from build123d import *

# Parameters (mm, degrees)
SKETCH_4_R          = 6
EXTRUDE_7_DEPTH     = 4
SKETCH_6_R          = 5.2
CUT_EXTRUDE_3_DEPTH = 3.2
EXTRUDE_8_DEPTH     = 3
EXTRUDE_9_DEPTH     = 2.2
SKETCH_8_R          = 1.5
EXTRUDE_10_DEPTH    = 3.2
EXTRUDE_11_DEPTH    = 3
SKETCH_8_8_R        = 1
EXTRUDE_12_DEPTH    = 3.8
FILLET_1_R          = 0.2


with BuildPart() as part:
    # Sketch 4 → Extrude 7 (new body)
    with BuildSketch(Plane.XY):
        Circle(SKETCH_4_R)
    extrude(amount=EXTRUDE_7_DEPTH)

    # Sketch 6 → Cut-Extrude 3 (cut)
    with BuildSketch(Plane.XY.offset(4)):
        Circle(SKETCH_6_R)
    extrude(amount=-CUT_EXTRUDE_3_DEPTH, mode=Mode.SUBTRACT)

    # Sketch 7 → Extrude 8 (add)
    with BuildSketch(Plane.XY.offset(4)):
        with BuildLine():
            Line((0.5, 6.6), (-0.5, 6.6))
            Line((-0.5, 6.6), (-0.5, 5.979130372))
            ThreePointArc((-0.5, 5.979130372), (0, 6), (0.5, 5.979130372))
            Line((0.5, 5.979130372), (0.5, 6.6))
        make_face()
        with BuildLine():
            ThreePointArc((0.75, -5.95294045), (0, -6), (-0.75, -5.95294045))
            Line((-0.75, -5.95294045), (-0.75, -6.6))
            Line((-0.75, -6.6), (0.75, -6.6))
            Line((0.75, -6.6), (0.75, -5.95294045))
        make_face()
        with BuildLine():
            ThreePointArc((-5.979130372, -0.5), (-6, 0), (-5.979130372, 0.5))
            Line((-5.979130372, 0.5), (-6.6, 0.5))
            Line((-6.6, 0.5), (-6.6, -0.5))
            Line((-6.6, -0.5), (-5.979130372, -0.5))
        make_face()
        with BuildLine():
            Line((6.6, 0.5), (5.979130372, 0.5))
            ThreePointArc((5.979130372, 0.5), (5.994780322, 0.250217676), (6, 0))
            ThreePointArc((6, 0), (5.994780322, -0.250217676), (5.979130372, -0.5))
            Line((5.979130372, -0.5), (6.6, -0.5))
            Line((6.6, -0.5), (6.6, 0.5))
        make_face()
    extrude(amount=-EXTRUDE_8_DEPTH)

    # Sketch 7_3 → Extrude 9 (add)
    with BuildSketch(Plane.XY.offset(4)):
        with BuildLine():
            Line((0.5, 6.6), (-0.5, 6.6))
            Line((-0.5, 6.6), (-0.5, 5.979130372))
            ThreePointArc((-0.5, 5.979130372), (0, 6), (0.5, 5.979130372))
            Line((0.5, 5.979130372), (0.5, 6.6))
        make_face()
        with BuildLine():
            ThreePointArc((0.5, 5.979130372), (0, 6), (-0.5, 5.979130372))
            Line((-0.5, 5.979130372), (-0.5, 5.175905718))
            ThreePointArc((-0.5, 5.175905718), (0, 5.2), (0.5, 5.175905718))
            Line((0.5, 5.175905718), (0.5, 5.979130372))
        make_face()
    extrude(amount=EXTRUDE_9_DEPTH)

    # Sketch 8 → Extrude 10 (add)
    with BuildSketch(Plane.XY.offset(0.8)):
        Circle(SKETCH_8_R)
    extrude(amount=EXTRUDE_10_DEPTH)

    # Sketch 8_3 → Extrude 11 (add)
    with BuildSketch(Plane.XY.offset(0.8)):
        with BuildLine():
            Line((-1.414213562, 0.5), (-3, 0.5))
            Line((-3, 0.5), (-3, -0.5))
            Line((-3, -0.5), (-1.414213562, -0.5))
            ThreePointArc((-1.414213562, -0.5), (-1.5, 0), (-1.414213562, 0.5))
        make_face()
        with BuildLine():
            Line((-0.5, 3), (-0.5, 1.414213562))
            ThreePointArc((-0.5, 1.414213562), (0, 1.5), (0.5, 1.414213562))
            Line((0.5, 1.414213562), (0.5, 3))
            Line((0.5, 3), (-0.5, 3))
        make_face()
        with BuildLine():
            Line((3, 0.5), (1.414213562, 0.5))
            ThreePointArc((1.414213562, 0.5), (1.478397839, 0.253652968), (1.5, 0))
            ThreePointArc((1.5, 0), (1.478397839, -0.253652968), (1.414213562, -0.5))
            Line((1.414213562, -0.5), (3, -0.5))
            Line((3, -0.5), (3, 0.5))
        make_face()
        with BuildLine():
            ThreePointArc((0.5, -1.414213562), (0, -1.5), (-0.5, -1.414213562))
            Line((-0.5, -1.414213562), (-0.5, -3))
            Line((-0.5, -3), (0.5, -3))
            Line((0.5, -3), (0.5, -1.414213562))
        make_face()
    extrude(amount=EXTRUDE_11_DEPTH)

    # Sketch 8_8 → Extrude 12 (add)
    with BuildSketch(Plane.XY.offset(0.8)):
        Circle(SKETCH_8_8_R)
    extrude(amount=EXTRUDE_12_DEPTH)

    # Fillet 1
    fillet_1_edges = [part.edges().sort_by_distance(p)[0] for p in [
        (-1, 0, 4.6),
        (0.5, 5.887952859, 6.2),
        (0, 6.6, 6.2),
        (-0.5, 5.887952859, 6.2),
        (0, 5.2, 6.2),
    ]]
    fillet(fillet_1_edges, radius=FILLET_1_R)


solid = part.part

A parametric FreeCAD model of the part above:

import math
import FreeCAD as App
import Part
import Sketcher
Q = App.Units.Quantity


def edges_at(feature, points):
    """Names of the edges that pass closest to the given points."""
    edges = feature.Shape.Edges
    near = lambda p: min(range(len(edges)), key=lambda i: edges[i].distToShape(Part.Vertex(*p))[0])
    return sorted({f"Edge{near(p) + 1}" for p in points})

doc = App.newDocument("Part")
body = doc.addObject("PartDesign::Body", "Body")

# Sketch on XY plane
sketch1 = body.newObject("Sketcher::SketchObject", "Sketch")
sketch1.AttachmentSupport = (doc.getObject("XY_Plane"), [""])
sketch1.MapMode = "FlatFace"
sketch1.addGeometry(Part.Circle(App.Vector(0, 0, 0), App.Vector(0, 0, 1), 6), False)
sketch1.addConstraint([
    Sketcher.Constraint("Coincident", 0, 3, -1, 1),
    Sketcher.Constraint("Diameter", 0, Q("12 mm")),
])
pad1 = body.newObject("PartDesign::Pad", "Pad")
pad1.Profile = sketch1
pad1.Length = 4

# Sketch on XY plane
sketch2 = body.newObject("Sketcher::SketchObject", "Sketch001")
sketch2.AttachmentSupport = (doc.getObject("XY_Plane"), [""])
sketch2.MapMode = "FlatFace"
sketch2.AttachmentOffset = App.Placement(App.Vector(0, 0, 4), App.Rotation())
sketch2.addGeometry(Part.Circle(App.Vector(0, 0, 0), App.Vector(0, 0, 1), 5.2), False)
sketch2.addConstraint([
    Sketcher.Constraint("Coincident", 0, 3, -1, 1),
    Sketcher.Constraint("Diameter", 0, Q("10.4 mm")),
])
pocket1 = body.newObject("PartDesign::Pocket", "Pocket")
pocket1.Profile = sketch2
pocket1.Length = 3.2

# Sketch on XY plane
sketch3 = body.newObject("Sketcher::SketchObject", "Sketch002")
sketch3.AttachmentSupport = (doc.getObject("XY_Plane"), [""])
sketch3.MapMode = "FlatFace"
sketch3.AttachmentOffset = App.Placement(App.Vector(0, 0, 4), App.Rotation())
sketch3.addGeometry([
    Part.LineSegment(App.Vector(0.5, 6.6, 0), App.Vector(-0.5, 6.6, 0)),  # 0
    Part.LineSegment(App.Vector(-0.5, 6.6, 0), App.Vector(-0.5, 5.97913, 0)),  # 1
    Part.ArcOfCircle(Part.Circle(App.Vector(0, 0, 0), App.Vector(0, 0, 1), 6), math.radians(85.219808), math.radians(94.780192)),  # 2
    Part.LineSegment(App.Vector(0.5, 5.97913, 0), App.Vector(0.5, 6.6, 0)),  # 3
    Part.ArcOfCircle(Part.Circle(App.Vector(0, 0, 0), App.Vector(0, 0, 1), 6), math.radians(-97.180756), math.radians(-82.819244)),  # 4
    Part.LineSegment(App.Vector(-0.75, -5.95294, 0), App.Vector(-0.75, -6.6, 0)),  # 5
    Part.LineSegment(App.Vector(-0.75, -6.6, 0), App.Vector(0.75, -6.6, 0)),  # 6
    Part.LineSegment(App.Vector(0.75, -6.6, 0), App.Vector(0.75, -5.95294, 0)),  # 7
    Part.ArcOfCircle(Part.Circle(App.Vector(0, 0, 0), App.Vector(0, 0, 1), 6), math.radians(175.219808), math.radians(184.780192)),  # 8
    Part.LineSegment(App.Vector(-5.97913, 0.5, 0), App.Vector(-6.6, 0.5, 0)),  # 9
    Part.LineSegment(App.Vector(-6.6, 0.5, 0), App.Vector(-6.6, -0.5, 0)),  # 10
    Part.LineSegment(App.Vector(-6.6, -0.5, 0), App.Vector(-5.97913, -0.5, 0)),  # 11
    Part.LineSegment(App.Vector(6.6, 0.5, 0), App.Vector(5.97913, 0.5, 0)),  # 12
    Part.ArcOfCircle(Part.Circle(App.Vector(-0.000001, 0, 0), App.Vector(0, 0, 1), 6.000001), math.radians(0), math.radians(4.780191)),  # 13
    Part.ArcOfCircle(Part.Circle(App.Vector(-0.000001, 0, 0), App.Vector(0, 0, 1), 6.000001), math.radians(-4.780191), math.radians(0)),  # 14
    Part.LineSegment(App.Vector(5.97913, -0.5, 0), App.Vector(6.6, -0.5, 0)),  # 15
    Part.LineSegment(App.Vector(6.6, -0.5, 0), App.Vector(6.6, 0.5, 0)),  # 16
], False)
sketch3.addConstraint([
    Sketcher.Constraint("Coincident", 0, 2, 1, 1),
    Sketcher.Constraint("Coincident", 1, 2, 2, 2),
    Sketcher.Constraint("Coincident", 2, 1, 3, 1),
    Sketcher.Constraint("Coincident", 3, 2, 0, 1),
    Sketcher.Constraint("Coincident", 4, 1, 5, 1),
    Sketcher.Constraint("Coincident", 5, 2, 6, 1),
    Sketcher.Constraint("Coincident", 6, 2, 7, 1),
    Sketcher.Constraint("Coincident", 7, 2, 4, 2),
    Sketcher.Constraint("Coincident", 8, 1, 9, 1),
    Sketcher.Constraint("Coincident", 9, 2, 10, 1),
    Sketcher.Constraint("Coincident", 10, 2, 11, 1),
    Sketcher.Constraint("Coincident", 11, 2, 8, 2),
    Sketcher.Constraint("Coincident", 12, 2, 13, 2),
    Sketcher.Constraint("Tangent", 13, 1, 14, 2),
    Sketcher.Constraint("Coincident", 14, 1, 15, 1),
    Sketcher.Constraint("Coincident", 15, 2, 16, 1),
    Sketcher.Constraint("Coincident", 16, 2, 12, 1),
    Sketcher.Constraint("Horizontal", 0),
    Sketcher.Constraint("Vertical", 1),
    Sketcher.Constraint("Vertical", 3),
    Sketcher.Constraint("Vertical", 5),
    Sketcher.Constraint("Horizontal", 6),
    Sketcher.Constraint("Vertical", 7),
    Sketcher.Constraint("Horizontal", 9),
    Sketcher.Constraint("Vertical", 10),
    Sketcher.Constraint("Horizontal", 11),
    Sketcher.Constraint("Horizontal", 12),
    Sketcher.Constraint("Horizontal", 15),
    Sketcher.Constraint("Vertical", 16),
    Sketcher.Constraint("Coincident", 2, 3, -1, 1),
    Sketcher.Constraint("Coincident", 4, 3, -1, 1),
    Sketcher.Constraint("Coincident", 8, 3, -1, 1),
    Sketcher.Constraint("Coincident", 13, 3, -1, 1),
    Sketcher.Constraint("Equal", 2, 4),
    Sketcher.Constraint("Equal", 4, 8),
    Sketcher.Constraint("Equal", 8, 13),
    Sketcher.Constraint("Equal", 13, 14),
    Sketcher.Constraint("Symmetric", 9, 2, 15, 2, -1, 1),
    Sketcher.Constraint("PointOnObject", 13, 1, -1),
    Sketcher.Constraint("Horizontal", 1, 2, 2, 1),
    Sketcher.Constraint("Horizontal", 4, 1, 7, 2),
    Sketcher.Constraint("Horizontal", 9, 2, 12, 2),
    Sketcher.Constraint("Horizontal", 11, 2, 14, 1),
    Sketcher.Constraint("Equal", 15, 1),
    Sketcher.Constraint("Equal", 0, 10),
    Sketcher.Constraint("Radius", 2, Q("6 mm")),
    Sketcher.Constraint("DistanceX", 0, 2, 0, 1, Q("1 mm")),
    Sketcher.Constraint("DistanceX", 6, 1, 6, 2, Q("1.5 mm")),
    Sketcher.Constraint("DistanceY", -1, 1, 0, 2, Q("6.6 mm")),
    Sketcher.Constraint("DistanceY", 5, 2, -1, 1, Q("6.6 mm")),
])
pad2 = body.newObject("PartDesign::Pad", "Pad001")
pad2.Profile = sketch3
pad2.Length = 3
pad2.Reversed = True

# Sketch on XY plane
sketch4 = body.newObject("Sketcher::SketchObject", "Sketch003")
sketch4.AttachmentSupport = (doc.getObject("XY_Plane"), [""])
sketch4.MapMode = "FlatFace"
sketch4.AttachmentOffset = App.Placement(App.Vector(0, 0, 4), App.Rotation())
sketch4.addGeometry([
    Part.LineSegment(App.Vector(0.5, 6.6, 0), App.Vector(-0.5, 6.6, 0)),
    Part.LineSegment(App.Vector(-0.5, 6.6, 0), App.Vector(-0.5, 5.175906, 0)),
    Part.ArcOfCircle(Part.Circle(App.Vector(0, 0, 0), App.Vector(0, 0, 1), 5.2), math.radians(84.482266), math.radians(95.517734)),
    Part.LineSegment(App.Vector(0.5, 5.175906, 0), App.Vector(0.5, 6.6, 0)),
], False)
sketch4.addConstraint([
    Sketcher.Constraint("Coincident", 0, 2, 1, 1),
    Sketcher.Constraint("Coincident", 1, 2, 2, 2),
    Sketcher.Constraint("Coincident", 2, 1, 3, 1),
    Sketcher.Constraint("Coincident", 3, 2, 0, 1),
    Sketcher.Constraint("Horizontal", 0),
    Sketcher.Constraint("Vertical", 1),
    Sketcher.Constraint("Vertical", 3),
    Sketcher.Constraint("Coincident", 2, 3, -1, 1),
    Sketcher.Constraint("Horizontal", 1, 2, 2, 1),
    Sketcher.Constraint("Radius", 2, Q("5.2 mm")),
    Sketcher.Constraint("DistanceX", 0, 2, 0, 1, Q("1 mm")),
    Sketcher.Constraint("DistanceY", -1, 1, 0, 2, Q("6.6 mm")),
])
pad3 = body.newObject("PartDesign::Pad", "Pad002")
pad3.Profile = sketch4
pad3.Length = 2.2

# Sketch on XY plane
sketch5 = body.newObject("Sketcher::SketchObject", "Sketch004")
sketch5.AttachmentSupport = (doc.getObject("XY_Plane"), [""])
sketch5.MapMode = "FlatFace"
sketch5.AttachmentOffset = App.Placement(App.Vector(0, 0, 0.8), App.Rotation())
sketch5.addGeometry(Part.Circle(App.Vector(0, 0, 0), App.Vector(0, 0, 1), 1.5), False)
sketch5.addConstraint([
    Sketcher.Constraint("Coincident", 0, 3, -1, 1),
    Sketcher.Constraint("Diameter", 0, Q("3 mm")),
])
pad4 = body.newObject("PartDesign::Pad", "Pad003")
pad4.Profile = sketch5
pad4.Length = 3.2

# Sketch on XY plane
sketch6 = body.newObject("Sketcher::SketchObject", "Sketch005")
sketch6.AttachmentSupport = (doc.getObject("XY_Plane"), [""])
sketch6.MapMode = "FlatFace"
sketch6.AttachmentOffset = App.Placement(App.Vector(0, 0, 0.8), App.Rotation())
sketch6.addGeometry([
    Part.LineSegment(App.Vector(-1.414214, 0.5, 0), App.Vector(-3, 0.5, 0)),  # 0
    Part.LineSegment(App.Vector(-3, 0.5, 0), App.Vector(-3, -0.5, 0)),  # 1
    Part.LineSegment(App.Vector(-3, -0.5, 0), App.Vector(-1.414214, -0.5, 0)),  # 2
    Part.ArcOfCircle(Part.Circle(App.Vector(0, 0, 0), App.Vector(0, 0, 1), 1.5), math.radians(160.528779), math.radians(199.471221)),  # 3
    Part.LineSegment(App.Vector(-0.5, 3, 0), App.Vector(-0.5, 1.414214, 0)),  # 4
    Part.ArcOfCircle(Part.Circle(App.Vector(0, 0, 0), App.Vector(0, 0, 1), 1.5), math.radians(70.528779), math.radians(109.471221)),  # 5
    Part.LineSegment(App.Vector(0.5, 1.414214, 0), App.Vector(0.5, 3, 0)),  # 6
    Part.LineSegment(App.Vector(0.5, 3, 0), App.Vector(-0.5, 3, 0)),  # 7
    Part.LineSegment(App.Vector(3, 0.5, 0), App.Vector(1.414214, 0.5, 0)),  # 8
    Part.ArcOfCircle(Part.Circle(App.Vector(0, 0, 0), App.Vector(0, 0, 1), 1.5), math.radians(0), math.radians(19.471221)),  # 9
    Part.ArcOfCircle(Part.Circle(App.Vector(0, 0, 0), App.Vector(0, 0, 1), 1.5), math.radians(-19.471221), math.radians(0)),  # 10
    Part.LineSegment(App.Vector(1.414214, -0.5, 0), App.Vector(3, -0.5, 0)),  # 11
    Part.LineSegment(App.Vector(3, -0.5, 0), App.Vector(3, 0.5, 0)),  # 12
    Part.ArcOfCircle(Part.Circle(App.Vector(0, 0, 0), App.Vector(0, 0, 1), 1.5), math.radians(-109.471221), math.radians(-70.528779)),  # 13
    Part.LineSegment(App.Vector(-0.5, -1.414214, 0), App.Vector(-0.5, -3, 0)),  # 14
    Part.LineSegment(App.Vector(-0.5, -3, 0), App.Vector(0.5, -3, 0)),  # 15
    Part.LineSegment(App.Vector(0.5, -3, 0), App.Vector(0.5, -1.414214, 0)),  # 16
], False)
sketch6.addConstraint([
    Sketcher.Constraint("Coincident", 0, 2, 1, 1),
    Sketcher.Constraint("Coincident", 1, 2, 2, 1),
    Sketcher.Constraint("Coincident", 2, 2, 3, 2),
    Sketcher.Constraint("Coincident", 3, 1, 0, 1),
    Sketcher.Constraint("Coincident", 4, 2, 5, 2),
    Sketcher.Constraint("Coincident", 5, 1, 6, 1),
    Sketcher.Constraint("Coincident", 6, 2, 7, 1),
    Sketcher.Constraint("Coincident", 7, 2, 4, 1),
    Sketcher.Constraint("Coincident", 8, 2, 9, 2),
    Sketcher.Constraint("Tangent", 9, 1, 10, 2),
    Sketcher.Constraint("Coincident", 10, 1, 11, 1),
    Sketcher.Constraint("Coincident", 11, 2, 12, 1),
    Sketcher.Constraint("Coincident", 12, 2, 8, 1),
    Sketcher.Constraint("Coincident", 13, 1, 14, 1),
    Sketcher.Constraint("Coincident", 14, 2, 15, 1),
    Sketcher.Constraint("Coincident", 15, 2, 16, 1),
    Sketcher.Constraint("Coincident", 16, 2, 13, 2),
    Sketcher.Constraint("Horizontal", 0),
    Sketcher.Constraint("Vertical", 1),
    Sketcher.Constraint("Horizontal", 2),
    Sketcher.Constraint("Vertical", 4),
    Sketcher.Constraint("Vertical", 6),
    Sketcher.Constraint("Horizontal", 7),
    Sketcher.Constraint("Horizontal", 8),
    Sketcher.Constraint("Horizontal", 11),
    Sketcher.Constraint("Vertical", 12),
    Sketcher.Constraint("Vertical", 14),
    Sketcher.Constraint("Horizontal", 15),
    Sketcher.Constraint("Vertical", 16),
    Sketcher.Constraint("Coincident", 3, 3, -1, 1),
    Sketcher.Constraint("Coincident", 5, 3, -1, 1),
    Sketcher.Constraint("Coincident", 9, 3, -1, 1),
    Sketcher.Constraint("Coincident", 13, 3, -1, 1),
    Sketcher.Constraint("Equal", 3, 5),
    Sketcher.Constraint("Equal", 5, 9),
    Sketcher.Constraint("Equal", 9, 10),
    Sketcher.Constraint("Equal", 10, 13),
    Sketcher.Constraint("Symmetric", 0, 2, 11, 2, -1, 1),
    Sketcher.Constraint("Symmetric", 6, 2, 14, 2, -1, 1),
    Sketcher.Constraint("PointOnObject", 9, 1, -1),
    Sketcher.Constraint("Horizontal", 4, 2, 5, 1),
    Sketcher.Constraint("Horizontal", 3, 1, 8, 2),
    Sketcher.Constraint("Horizontal", 2, 2, 10, 1),
    Sketcher.Constraint("Horizontal", 13, 1, 16, 2),
    Sketcher.Constraint("Equal", 15, 1),
    Sketcher.Constraint("Equal", 11, 4),
    Sketcher.Constraint("Radius", 3, Q("1.5 mm")),
    Sketcher.Constraint("DistanceX", 7, 2, 7, 1, Q("1 mm")),
    Sketcher.Constraint("DistanceX", 0, 2, -1, 1, Q("3 mm")),
])
pad5 = body.newObject("PartDesign::Pad", "Pad004")
pad5.Profile = sketch6
pad5.Length = 3

# Sketch on XY plane
sketch7 = body.newObject("Sketcher::SketchObject", "Sketch006")
sketch7.AttachmentSupport = (doc.getObject("XY_Plane"), [""])
sketch7.MapMode = "FlatFace"
sketch7.AttachmentOffset = App.Placement(App.Vector(0, 0, 0.8), App.Rotation())
sketch7.addGeometry(Part.Circle(App.Vector(0, 0, 0), App.Vector(0, 0, 1), 1), False)
sketch7.addConstraint([
    Sketcher.Constraint("Coincident", 0, 3, -1, 1),
    Sketcher.Constraint("Diameter", 0, Q("2 mm")),
])
pad6 = body.newObject("PartDesign::Pad", "Pad005")
pad6.Profile = sketch7
pad6.Length = 3.8
doc.recompute()

fillet = body.newObject("PartDesign::Fillet", "Fillet")
fillet.Base = (pad6, edges_at(pad6, [
    (-1, 0, 4.6),
    (0.5, 5.888, 6.2),
    (0, 6.6, 6.2),
    (-0.5, 5.888, 6.2),
    (0, 5.2, 6.2),
]))
fillet.Radius = 0.2

doc.recompute()
